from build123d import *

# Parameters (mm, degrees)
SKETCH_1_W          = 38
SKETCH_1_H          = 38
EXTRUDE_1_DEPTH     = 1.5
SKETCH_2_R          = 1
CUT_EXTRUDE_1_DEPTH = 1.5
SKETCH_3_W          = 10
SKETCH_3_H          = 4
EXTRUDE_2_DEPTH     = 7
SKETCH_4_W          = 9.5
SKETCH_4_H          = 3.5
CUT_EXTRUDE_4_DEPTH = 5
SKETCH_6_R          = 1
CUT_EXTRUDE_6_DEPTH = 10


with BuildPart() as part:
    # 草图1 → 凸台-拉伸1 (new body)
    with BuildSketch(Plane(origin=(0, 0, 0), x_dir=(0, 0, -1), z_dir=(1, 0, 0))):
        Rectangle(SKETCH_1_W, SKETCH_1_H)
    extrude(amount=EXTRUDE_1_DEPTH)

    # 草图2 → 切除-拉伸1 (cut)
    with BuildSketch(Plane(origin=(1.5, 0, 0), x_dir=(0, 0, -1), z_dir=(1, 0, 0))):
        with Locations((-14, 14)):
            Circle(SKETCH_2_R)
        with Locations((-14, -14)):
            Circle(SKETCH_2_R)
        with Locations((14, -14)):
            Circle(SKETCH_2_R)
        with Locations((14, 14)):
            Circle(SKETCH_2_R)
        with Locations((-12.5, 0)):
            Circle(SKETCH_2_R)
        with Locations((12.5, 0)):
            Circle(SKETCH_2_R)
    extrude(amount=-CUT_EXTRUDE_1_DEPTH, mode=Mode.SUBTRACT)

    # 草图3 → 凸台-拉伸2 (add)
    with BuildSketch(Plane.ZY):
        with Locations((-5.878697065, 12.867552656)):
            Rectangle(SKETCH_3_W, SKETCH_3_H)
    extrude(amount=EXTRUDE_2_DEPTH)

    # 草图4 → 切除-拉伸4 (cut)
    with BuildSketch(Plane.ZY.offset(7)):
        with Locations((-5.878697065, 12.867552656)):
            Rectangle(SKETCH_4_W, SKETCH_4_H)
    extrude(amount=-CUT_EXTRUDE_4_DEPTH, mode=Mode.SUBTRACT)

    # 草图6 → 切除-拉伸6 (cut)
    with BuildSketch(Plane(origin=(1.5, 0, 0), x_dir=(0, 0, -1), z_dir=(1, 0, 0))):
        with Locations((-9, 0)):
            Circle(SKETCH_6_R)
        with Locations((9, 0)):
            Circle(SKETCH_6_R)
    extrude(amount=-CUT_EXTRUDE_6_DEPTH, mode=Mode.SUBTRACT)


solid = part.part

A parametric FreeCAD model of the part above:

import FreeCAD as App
import Part
import Sketcher
from FreeCAD import Vector
Q = App.Units.Quantity


def add_polygon(sketch, points):
    """Adds a closed chain of lines whose ends are joined by coincident constraints."""
    first, n = sketch.GeometryCount, len(points)
    for a, b in zip(points, points[1:] + points[:1]):
        sketch.addGeometry(Part.LineSegment(App.Vector(*a, 0), App.Vector(*b, 0)), False)
    for i in range(n):
        sketch.addConstraint(Sketcher.Constraint("Coincident", first + i, 2, first + (i + 1) % n, 1))

doc = App.newDocument("Part")
params = doc.addObject("Spreadsheet::Sheet", "Params")
for row, (alias, value) in enumerate([
    ("sketch1_width", "38 mm"),
    ("pad1_length", "1.5 mm"),
    ("sketch2_diameter", "2 mm"),
    ("pocket1_length", "1.5 mm"),
    ("sketch3_width", "4 mm"),
    ("sketch3_height", "10 mm"),
    ("pad2_length", "7 mm"),
    ("sketch4_width", "3.5 mm"),
    ("sketch4_height", "9.5 mm"),
    ("pocket2_length", "5 mm"),
    ("sketch5_diameter", "2 mm"),
    ("pocket3_length", "10 mm"),
], start=1):
    params.set(f"A{row}", alias)
    params.set(f"B{row}", "=" + value)
    params.setAlias(f"B{row}", alias)

body = doc.addObject("PartDesign::Body", "Body")

# Sketch on YZ plane
sketch1 = body.newObject("Sketcher::SketchObject", "Sketch")
sketch1.AttachmentSupport = (doc.getObject("YZ_Plane"), [""])
sketch1.MapMode = "FlatFace"
add_polygon(sketch1, [(19, 19), (-19, 19), (-19, -19), (19, -19)])  # lines 0-3
sketch1.addConstraint(Sketcher.Constraint("Horizontal", 0))
sketch1.addConstraint(Sketcher.Constraint("Vertical", 1))
sketch1.addConstraint(Sketcher.Constraint("Horizontal", 2))
sketch1.addConstraint(Sketcher.Constraint("Vertical", 3))
sketch1.addConstraint(Sketcher.Constraint("Symmetric", 0, 2, 2, 2, -1, 1))
sketch1.addConstraint(Sketcher.Constraint("Equal", 2, 1))
sketch1.addConstraint(Sketcher.Constraint("DistanceX", 0, 2, 0, 1, Q("38 mm")))
sketch1.setExpression("Constraints[10]", "Params.sketch1_width")
pad1 = body.newObject("PartDesign::Pad", "Pad")
pad1.Profile = sketch1
pad1.setExpression("Length", "Params.pad1_length")

# Sketch on YZ plane
sketch2 = body.newObject("Sketcher::SketchObject", "Sketch001")
sketch2.AttachmentSupport = (doc.getObject("YZ_Plane"), [""])
sketch2.MapMode = "FlatFace"
sketch2.AttachmentOffset = App.Placement(Vector(0, 0, 1.5), App.Rotation())
sketch2.addGeometry(Part.Circle(Vector(14, 14, 0), Vector(0, 0, 1), 1), False)
sketch2.addGeometry(Part.Circle(Vector(-14, 14, 0), Vector(0, 0, 1), 1), False)
sketch2.addGeometry(Part.Circle(Vector(-14, -14, 0), Vector(0, 0, 1), 1), False)
sketch2.addGeometry(Part.Circle(Vector(14, -14, 0), Vector(0, 0, 1), 1), False)
sketch2.addGeometry(Part.Circle(Vector(0, 12.5, 0), Vector(0, 0, 1), 1), False)
sketch2.addGeometry(Part.Circle(Vector(0, -12.5, 0), Vector(0, 0, 1), 1), False)
sketch2.addConstraint(Sketcher.Constraint("Equal", 0, 1))
sketch2.addConstraint(Sketcher.Constraint("Equal", 1, 2))
sketch2.addConstraint(Sketcher.Constraint("Equal", 2, 3))
sketch2.addConstraint(Sketcher.Constraint("Equal", 3, 4))
sketch2.addConstraint(Sketcher.Constraint("Equal", 4, 5))
sketch2.addConstraint(Sketcher.Constraint("Symmetric", 0, 3, 2, 3, -1, 1))
sketch2.addConstraint(Sketcher.Constraint("Symmetric", 1, 3, 3, 3, -1, 1))
sketch2.addConstraint(Sketcher.Constraint("Symmetric", 4, 3, 5, 3, -1, 1))
sketch2.addConstraint(Sketcher.Constraint("Symmetric", 0, 3, 1, 3, -2))
sketch2.addConstraint(Sketcher.Constraint("PointOnObject", 4, 3, -2))
sketch2.addConstraint(Sketcher.Constraint("Diameter", 0, Q("2 mm")))
sketch2.addConstraint(Sketcher.Constraint("DistanceX", -1, 1, 0, 3, Q("14 mm")))
sketch2.addConstraint(Sketcher.Constraint("DistanceY", -1, 1, 0, 3, Q("14 mm")))
sketch2.addConstraint(Sketcher.Constraint("DistanceY", 5, 3, 4, 3, Q("25 mm")))
sketch2.setExpression("Constraints[10]", "Params.sketch2_diameter")
pocket1 = body.newObject("PartDesign::Pocket", "Pocket")
pocket1.Profile = sketch2
pocket1.setExpression("Length", "Params.pocket1_length")

# Sketch on YZ plane
sketch3 = body.newObject("Sketcher::SketchObject", "Sketch002")
sketch3.AttachmentSupport = (doc.getObject("YZ_Plane"), [""])
sketch3.MapMode = "FlatFace"
add_polygon(sketch3, [(14.9, -10.9), (10.9, -10.9), (10.9, -0.9), (14.9, -0.9)])  # lines 0-3
sketch3.addConstraint(Sketcher.Constraint("Horizontal", 0))
sketch3.addConstraint(Sketcher.Constraint("Vertical", 1))
sketch3.addConstraint(Sketcher.Constraint("Horizontal", 2))
sketch3.addConstraint(Sketcher.Constraint("Vertical", 3))
sketch3.addConstraint(Sketcher.Constraint("DistanceX", 0, 2, 0, 1, Q("4 mm")))
sketch3.addConstraint(Sketcher.Constraint("DistanceY", 1, 1, 1, 2, Q("10 mm")))
sketch3.addConstraint(Sketcher.Constraint("DistanceX", -1, 1, 0, 2, Q("10.867553 mm")))
sketch3.addConstraint(Sketcher.Constraint("DistanceY", 0, 2, -1, 1, Q("10.878697 mm")))
sketch3.setExpression("Constraints[8]", "Params.sketch3_width")
sketch3.setExpression("Constraints[9]", "Params.sketch3_height")
pad2 = body.newObject("PartDesign::Pad", "Pad001")
pad2.Profile = sketch3
pad2.setExpression("Length", "Params.pad2_length")
pad2.Reversed = True

# Sketch on YZ plane
sketch4 = body.newObject("Sketcher::SketchObject", "Sketch003")
sketch4.AttachmentSupport = (doc.getObject("YZ_Plane"), [""])
sketch4.MapMode = "FlatFace"
sketch4.AttachmentOffset = App.Placement(Vector(0, 0, -7), App.Rotation())
add_polygon(sketch4, [(14.6, -10.6), (11.1, -10.6), (11.1, -1.1), (14.6, -1.1)])  # lines 0-3
sketch4.addConstraint(Sketcher.Constraint("Horizontal", 0))
sketch4.addConstraint(Sketcher.Constraint("Vertical", 1))
sketch4.addConstraint(Sketcher.Constraint("Horizontal", 2))
sketch4.addConstraint(Sketcher.Constraint("Vertical", 3))
sketch4.addConstraint(Sketcher.Constraint("DistanceX", 0, 2, 0, 1, Q("3.5 mm")))
sketch4.addConstraint(Sketcher.Constraint("DistanceY", 1, 1, 1, 2, Q("9.5 mm")))
sketch4.addConstraint(Sketcher.Constraint("DistanceX", -1, 1, 0, 2, Q("11.117553 mm")))
sketch4.addConstraint(Sketcher.Constraint("DistanceY", 0, 2, -1, 1, Q("10.628697 mm")))
sketch4.setExpression("Constraints[8]", "Params.sketch4_width")
sketch4.setExpression("Constraints[9]", "Params.sketch4_height")
pocket2 = body.newObject("PartDesign::Pocket", "Pocket001")
pocket2.Profile = sketch4
pocket2.setExpression("Length", "Params.pocket2_length")
pocket2.Reversed = True

# Sketch on YZ plane
sketch5 = body.newObject("Sketcher::SketchObject", "Sketch004")
sketch5.AttachmentSupport = (doc.getObject("YZ_Plane"), [""])
sketch5.MapMode = "FlatFace"
sketch5.AttachmentOffset = App.Placement(Vector(0, 0, 1.5), App.Rotation())
sketch5.addGeometry(Part.Circle(Vector(0, 9, 0), Vector(0, 0, 1), 1), False)
sketch5.addGeometry(Part.Circle(Vector(0, -9, 0), Vector(0, 0, 1), 1), False)
sketch5.addConstraint(Sketcher.Constraint("Equal", 0, 1))
sketch5.addConstraint(Sketcher.Constraint("Symmetric", 0, 3, 1, 3, -1, 1))
sketch5.addConstraint(Sketcher.Constraint("PointOnObject", 0, 3, -2))
sketch5.addConstraint(Sketcher.Constraint("Diameter", 0, Q("2 mm")))
sketch5.addConstraint(Sketcher.Constraint("DistanceY", -1, 1, 0, 3, Q("9 mm")))
sketch5.setExpression("Constraints[3]", "Params.sketch5_diameter")
pocket3 = body.newObject("PartDesign::Pocket", "Pocket002")
pocket3.Profile = sketch5
pocket3.setExpression("Length", "Params.pocket3_length")

doc.recompute()
